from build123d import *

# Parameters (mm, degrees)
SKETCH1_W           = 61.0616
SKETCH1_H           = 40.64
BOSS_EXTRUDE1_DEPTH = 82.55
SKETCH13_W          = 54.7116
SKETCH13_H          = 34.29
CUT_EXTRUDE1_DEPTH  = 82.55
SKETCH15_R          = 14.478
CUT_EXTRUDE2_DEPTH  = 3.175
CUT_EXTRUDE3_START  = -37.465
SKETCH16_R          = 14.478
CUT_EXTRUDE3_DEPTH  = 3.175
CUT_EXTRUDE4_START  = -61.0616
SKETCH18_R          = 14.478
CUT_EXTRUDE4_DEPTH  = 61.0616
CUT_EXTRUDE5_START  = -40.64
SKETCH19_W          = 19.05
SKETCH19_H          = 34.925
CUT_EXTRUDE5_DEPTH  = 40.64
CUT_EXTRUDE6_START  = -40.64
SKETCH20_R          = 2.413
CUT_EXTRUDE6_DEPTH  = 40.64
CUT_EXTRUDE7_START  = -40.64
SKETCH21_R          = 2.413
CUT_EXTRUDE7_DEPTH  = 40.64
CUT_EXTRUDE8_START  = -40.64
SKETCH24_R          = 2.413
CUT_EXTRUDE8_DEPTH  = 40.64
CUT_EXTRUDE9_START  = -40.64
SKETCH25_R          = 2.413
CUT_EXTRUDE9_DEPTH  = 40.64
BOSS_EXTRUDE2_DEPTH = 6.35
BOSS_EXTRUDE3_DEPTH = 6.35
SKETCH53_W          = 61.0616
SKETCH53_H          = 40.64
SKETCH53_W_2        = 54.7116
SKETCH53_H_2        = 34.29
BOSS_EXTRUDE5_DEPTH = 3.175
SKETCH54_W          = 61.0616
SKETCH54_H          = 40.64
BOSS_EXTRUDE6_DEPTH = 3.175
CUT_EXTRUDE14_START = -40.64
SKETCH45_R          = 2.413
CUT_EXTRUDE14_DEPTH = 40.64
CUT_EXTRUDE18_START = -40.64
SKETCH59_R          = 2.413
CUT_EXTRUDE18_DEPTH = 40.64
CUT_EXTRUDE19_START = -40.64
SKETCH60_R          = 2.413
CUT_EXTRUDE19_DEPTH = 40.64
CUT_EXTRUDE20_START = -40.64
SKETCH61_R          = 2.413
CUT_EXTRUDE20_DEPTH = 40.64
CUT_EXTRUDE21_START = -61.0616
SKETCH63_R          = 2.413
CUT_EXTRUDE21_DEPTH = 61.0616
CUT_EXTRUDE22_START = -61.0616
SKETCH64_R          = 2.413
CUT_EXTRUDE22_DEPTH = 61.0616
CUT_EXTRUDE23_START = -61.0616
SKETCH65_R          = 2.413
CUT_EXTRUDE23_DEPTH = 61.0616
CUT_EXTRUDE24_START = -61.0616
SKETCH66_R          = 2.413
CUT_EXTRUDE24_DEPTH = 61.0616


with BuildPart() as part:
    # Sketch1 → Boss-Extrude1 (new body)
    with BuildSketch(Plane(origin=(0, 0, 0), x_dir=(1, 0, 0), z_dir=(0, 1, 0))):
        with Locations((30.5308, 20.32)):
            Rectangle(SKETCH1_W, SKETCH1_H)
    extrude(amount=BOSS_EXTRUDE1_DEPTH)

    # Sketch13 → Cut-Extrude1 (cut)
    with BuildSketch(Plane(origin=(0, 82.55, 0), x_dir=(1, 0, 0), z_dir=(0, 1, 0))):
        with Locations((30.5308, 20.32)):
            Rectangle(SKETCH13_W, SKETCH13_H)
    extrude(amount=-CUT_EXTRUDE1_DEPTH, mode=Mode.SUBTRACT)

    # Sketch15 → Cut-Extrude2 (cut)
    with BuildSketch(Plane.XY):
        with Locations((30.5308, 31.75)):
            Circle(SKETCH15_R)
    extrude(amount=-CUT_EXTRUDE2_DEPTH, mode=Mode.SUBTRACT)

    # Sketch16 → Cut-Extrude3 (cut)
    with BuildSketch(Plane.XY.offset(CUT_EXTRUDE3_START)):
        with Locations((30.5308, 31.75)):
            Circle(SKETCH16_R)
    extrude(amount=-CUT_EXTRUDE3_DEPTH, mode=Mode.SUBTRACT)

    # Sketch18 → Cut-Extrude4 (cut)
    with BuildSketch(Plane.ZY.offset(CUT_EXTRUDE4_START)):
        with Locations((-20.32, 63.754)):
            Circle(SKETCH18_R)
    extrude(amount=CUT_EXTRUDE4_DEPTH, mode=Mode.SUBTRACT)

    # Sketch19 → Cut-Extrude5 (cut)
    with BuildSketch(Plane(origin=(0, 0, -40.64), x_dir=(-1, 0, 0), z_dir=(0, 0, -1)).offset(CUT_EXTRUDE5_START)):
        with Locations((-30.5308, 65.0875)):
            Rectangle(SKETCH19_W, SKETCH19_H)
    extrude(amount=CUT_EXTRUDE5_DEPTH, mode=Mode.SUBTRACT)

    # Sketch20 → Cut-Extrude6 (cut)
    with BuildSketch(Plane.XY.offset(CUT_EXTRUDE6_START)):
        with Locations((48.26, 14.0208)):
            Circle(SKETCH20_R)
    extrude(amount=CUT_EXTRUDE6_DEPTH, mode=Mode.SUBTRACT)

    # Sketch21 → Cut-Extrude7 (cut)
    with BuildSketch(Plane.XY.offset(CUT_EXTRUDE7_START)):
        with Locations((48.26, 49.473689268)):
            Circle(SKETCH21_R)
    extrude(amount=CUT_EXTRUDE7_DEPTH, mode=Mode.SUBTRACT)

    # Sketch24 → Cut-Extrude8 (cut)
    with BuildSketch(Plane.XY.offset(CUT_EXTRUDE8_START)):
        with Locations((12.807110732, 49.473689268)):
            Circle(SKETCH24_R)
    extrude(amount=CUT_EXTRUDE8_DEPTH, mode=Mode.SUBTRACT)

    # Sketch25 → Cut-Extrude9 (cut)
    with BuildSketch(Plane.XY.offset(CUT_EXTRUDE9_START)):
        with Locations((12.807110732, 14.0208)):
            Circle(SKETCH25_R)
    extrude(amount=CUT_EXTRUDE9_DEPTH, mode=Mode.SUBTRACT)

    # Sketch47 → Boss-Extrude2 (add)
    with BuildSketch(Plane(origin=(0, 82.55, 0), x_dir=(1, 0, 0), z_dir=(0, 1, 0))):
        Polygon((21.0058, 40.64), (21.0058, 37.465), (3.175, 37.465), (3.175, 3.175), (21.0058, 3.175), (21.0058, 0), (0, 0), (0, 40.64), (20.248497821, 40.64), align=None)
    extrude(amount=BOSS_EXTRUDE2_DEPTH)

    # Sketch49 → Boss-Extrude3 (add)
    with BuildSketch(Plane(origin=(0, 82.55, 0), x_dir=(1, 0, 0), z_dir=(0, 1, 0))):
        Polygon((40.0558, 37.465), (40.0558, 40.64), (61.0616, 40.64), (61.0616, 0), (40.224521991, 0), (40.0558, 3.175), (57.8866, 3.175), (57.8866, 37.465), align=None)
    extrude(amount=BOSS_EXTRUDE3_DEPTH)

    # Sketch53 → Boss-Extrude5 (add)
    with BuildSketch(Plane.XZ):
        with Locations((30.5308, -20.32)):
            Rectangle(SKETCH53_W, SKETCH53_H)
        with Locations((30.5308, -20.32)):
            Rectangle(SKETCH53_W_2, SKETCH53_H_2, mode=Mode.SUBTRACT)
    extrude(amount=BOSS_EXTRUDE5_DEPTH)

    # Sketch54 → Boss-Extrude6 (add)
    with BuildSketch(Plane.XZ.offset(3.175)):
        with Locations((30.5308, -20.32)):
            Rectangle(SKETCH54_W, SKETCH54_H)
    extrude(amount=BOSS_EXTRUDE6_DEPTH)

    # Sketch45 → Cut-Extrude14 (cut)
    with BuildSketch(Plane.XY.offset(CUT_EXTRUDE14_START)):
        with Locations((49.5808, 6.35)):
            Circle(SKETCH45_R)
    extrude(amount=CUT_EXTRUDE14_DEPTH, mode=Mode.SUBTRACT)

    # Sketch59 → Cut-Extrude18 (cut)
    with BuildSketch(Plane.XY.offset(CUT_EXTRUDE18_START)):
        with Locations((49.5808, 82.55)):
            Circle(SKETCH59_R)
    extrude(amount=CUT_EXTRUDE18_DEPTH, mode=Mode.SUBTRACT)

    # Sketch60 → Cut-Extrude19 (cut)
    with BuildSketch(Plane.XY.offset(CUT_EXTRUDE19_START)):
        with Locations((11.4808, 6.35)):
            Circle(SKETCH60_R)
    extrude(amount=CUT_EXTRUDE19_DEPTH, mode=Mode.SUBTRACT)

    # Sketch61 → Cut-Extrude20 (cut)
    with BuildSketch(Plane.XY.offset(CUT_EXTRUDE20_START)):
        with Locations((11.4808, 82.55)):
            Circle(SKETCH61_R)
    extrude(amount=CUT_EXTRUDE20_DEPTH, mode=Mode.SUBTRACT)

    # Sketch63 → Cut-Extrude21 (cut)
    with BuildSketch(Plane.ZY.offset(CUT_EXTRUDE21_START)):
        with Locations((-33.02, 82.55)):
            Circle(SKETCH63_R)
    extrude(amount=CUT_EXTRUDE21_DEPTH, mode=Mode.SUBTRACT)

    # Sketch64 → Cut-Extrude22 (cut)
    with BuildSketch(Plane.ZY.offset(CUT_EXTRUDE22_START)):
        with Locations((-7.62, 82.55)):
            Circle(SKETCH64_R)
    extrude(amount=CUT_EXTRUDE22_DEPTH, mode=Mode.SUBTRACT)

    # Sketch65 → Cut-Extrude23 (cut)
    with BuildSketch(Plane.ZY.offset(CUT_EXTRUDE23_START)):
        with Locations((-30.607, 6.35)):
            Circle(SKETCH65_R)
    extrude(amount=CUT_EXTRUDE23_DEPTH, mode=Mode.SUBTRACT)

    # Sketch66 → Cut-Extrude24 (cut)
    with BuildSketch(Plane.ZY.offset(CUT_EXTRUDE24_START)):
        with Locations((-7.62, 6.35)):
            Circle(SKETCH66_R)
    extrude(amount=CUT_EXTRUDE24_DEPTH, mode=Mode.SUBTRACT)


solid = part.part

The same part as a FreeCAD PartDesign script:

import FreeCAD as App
import Part
import Sketcher

V = App.Vector
Q = App.Units.Quantity


def add_polygon(sketch, points):
    """Adds a closed chain of lines whose ends are joined by coincident constraints."""
    first, n = sketch.GeometryCount, len(points)
    for a, b in zip(points, points[1:] + points[:1]):
        sketch.addGeometry(Part.LineSegment(App.Vector(*a, 0), App.Vector(*b, 0)), False)
    for i in range(n):
        sketch.addConstraint(Sketcher.Constraint("Coincident", first + i, 2, first + (i + 1) % n, 1))

doc = App.newDocument("Part")
body = doc.addObject("PartDesign::Body", "Body")

# Sketch on XZ plane
sketch1 = body.newObject("Sketcher::SketchObject", "Sketch")
sketch1.AttachmentSupport = (doc.getObject("XZ_Plane"), [""])
sketch1.MapMode = "FlatFace"
add_polygon(sketch1, [(0, -40.64), (0, 0), (61.0616, 0), (61.0616, -40.64)])  # lines 0-3
sketch1.addConstraint([
    Sketcher.Constraint("Vertical", 0),
    Sketcher.Constraint("Horizontal", 1),
    Sketcher.Constraint("Vertical", 2),
    Sketcher.Constraint("Horizontal", 3),
    Sketcher.Constraint("Coincident", 0, 2, -1, 1),
    Sketcher.Constraint("DistanceY", 0, 1, 0, 2, Q("1.6 in")),
    Sketcher.Constraint("DistanceX", 1, 1, 1, 2, Q("2.404 in")),
])
pad1 = body.newObject("PartDesign::Pad", "Pad")
pad1.Profile = sketch1
pad1.Length = Q("3.25 in")
pad1.Reversed = True

# Sketch on XZ plane
sketch2 = body.newObject("Sketcher::SketchObject", "Sketch001")
sketch2.AttachmentSupport = (doc.getObject("XZ_Plane"), [""])
sketch2.MapMode = "FlatFace"
sketch2.AttachmentOffset = App.Placement(V(0, 0, -3.25 * 25.4), App.Rotation())
add_polygon(sketch2, [(3.175, -37.465), (3.175, -3.175), (57.8866, -3.175), (57.8866, -37.465)])  # lines 0-3
sketch2.addConstraint([
    Sketcher.Constraint("Vertical", 0),
    Sketcher.Constraint("Horizontal", 1),
    Sketcher.Constraint("Vertical", 2),
    Sketcher.Constraint("Horizontal", 3),
    Sketcher.Constraint("DistanceY", 0, 1, 0, 2, Q("1.35 in")),
    Sketcher.Constraint("DistanceX", 1, 1, 1, 2, Q("2.154 in")),
    Sketcher.Constraint("DistanceX", -1, 1, 0, 2, Q("0.125 in")),
    Sketcher.Constraint("DistanceY", 0, 2, -1, 1, Q("0.125 in")),
])
pocket1 = body.newObject("PartDesign::Pocket", "Pocket")
pocket1.Profile = sketch2
pocket1.Length = Q("3.25 in")
pocket1.Reversed = True

# Sketch on XY plane
sketch3 = body.newObject("Sketcher::SketchObject", "Sketch002")
sketch3.AttachmentSupport = (doc.getObject("XY_Plane"), [""])
sketch3.MapMode = "FlatFace"
sketch3.addGeometry(Part.Circle(V(30.5308, 31.75, 0), V(0, 0, 1), 14.478), False)
sketch3.addConstraint([
    Sketcher.Constraint("Diameter", 0, Q("1.14 in")),
    Sketcher.Constraint("DistanceY", -1, 1, 0, 3, Q("1.25 in")),
    Sketcher.Constraint("DistanceX", -1, 1, 0, 3, Q("1.202 in")),
])
pocket2 = body.newObject("PartDesign::Pocket", "Pocket001")
pocket2.Profile = sketch3
pocket2.Length = Q("0.125 in")

# Sketch on XY plane
sketch4 = body.newObject("Sketcher::SketchObject", "Sketch003")
sketch4.AttachmentSupport = (doc.getObject("XY_Plane"), [""])
sketch4.MapMode = "FlatFace"
sketch4.AttachmentOffset = App.Placement(V(0, 0, -1.475 * 25.4), App.Rotation())
sketch4.addGeometry(Part.Circle(V(30.5308, 31.75, 0), V(0, 0, 1), 14.478), False)
sketch4.addConstraint([
    Sketcher.Constraint("Diameter", 0, Q("1.14 in")),
    Sketcher.Constraint("DistanceY", -1, 1, 0, 3, Q("1.25 in")),
    Sketcher.Constraint("DistanceX", -1, 1, 0, 3, Q("1.202 in")),
])
pocket3 = body.newObject("PartDesign::Pocket", "Pocket002")
pocket3.Profile = sketch4
pocket3.Length = Q("0.125 in")

# Sketch on YZ plane
sketch5 = body.newObject("Sketcher::SketchObject", "Sketch004")
sketch5.AttachmentSupport = (doc.getObject("YZ_Plane"), [""])
sketch5.MapMode = "FlatFace"
sketch5.AttachmentOffset = App.Placement(V(0, 0, 2.404 * 25.4), App.Rotation())
sketch5.addGeometry(Part.Circle(V(63.754, -20.32, 0), V(0, 0, 1), 14.478), False)
sketch5.addConstraint([
    Sketcher.Constraint("Diameter", 0, Q("1.14 in")),
    Sketcher.Constraint("DistanceY", 0, 3, -1, 1, Q("0.8 in")),
    Sketcher.Constraint("DistanceX", -1, 1, 0, 3, Q("2.51 in")),
])
pocket4 = body.newObject("PartDesign::Pocket", "Pocket003")
pocket4.Profile = sketch5
pocket4.Length = Q("2.404 in")

# Sketch on XY plane
sketch6 = body.newObject("Sketcher::SketchObject", "Sketch005")
sketch6.AttachmentSupport = (doc.getObject("XY_Plane"), [""])
sketch6.MapMode = "FlatFace"
add_polygon(sketch6, [(40.0558, 82.55), (40.0558, 47.625), (21.0058, 47.625), (21.0058, 82.55)])  # lines 0-3
sketch6.addConstraint([
    Sketcher.Constraint("Vertical", 0),
    Sketcher.Constraint("Horizontal", 1),
    Sketcher.Constraint("Vertical", 2),
    Sketcher.Constraint("Horizontal", 3),
    Sketcher.Constraint("DistanceX", 1, 2, 1, 1, Q("0.75 in")),
    Sketcher.Constraint("DistanceY", 0, 2, 0, 1, Q("1.375 in")),
    Sketcher.Constraint("DistanceY", -1, 1, 2, 2, Q("3.25 in")),
    Sketcher.Constraint("DistanceX", -1, 1, 0, 2, Q("1.577 in")),
])
pocket5 = body.newObject("PartDesign::Pocket", "Pocket004")
pocket5.Profile = sketch6
pocket5.Length = Q("1.6 in")

# Sketch on XY plane
sketch7 = body.newObject("Sketcher::SketchObject", "Sketch006")
sketch7.AttachmentSupport = (doc.getObject("XY_Plane"), [""])
sketch7.MapMode = "FlatFace"
sketch7.AttachmentOffset = App.Placement(V(0, 0, -1.6 * 25.4), App.Rotation())
sketch7.addGeometry(Part.Circle(V(48.26, 14.0208, 0), V(0, 0, 1), 2.413), False)
sketch7.addConstraint([
    Sketcher.Constraint("Diameter", 0, Q("0.19 in")),
    Sketcher.Constraint("DistanceX", -1, 1, 0, 3, Q("1.9 in")),
    Sketcher.Constraint("DistanceY", -1, 1, 0, 3, Q("0.552 in")),
])
pocket6 = body.newObject("PartDesign::Pocket", "Pocket005")
pocket6.Profile = sketch7
pocket6.Length = Q("1.6 in")
pocket6.Reversed = True

# Sketch on XY plane
sketch8 = body.newObject("Sketcher::SketchObject", "Sketch007")
sketch8.AttachmentSupport = (doc.getObject("XY_Plane"), [""])
sketch8.MapMode = "FlatFace"
sketch8.AttachmentOffset = App.Placement(V(0, 0, -1.6 * 25.4), App.Rotation())
sketch8.addGeometry(Part.Circle(V(48.26, 49.473689, 0), V(0, 0, 1), 2.413), False)
sketch8.addConstraint([
    Sketcher.Constraint("Diameter", 0, Q("0.19 in")),
    Sketcher.Constraint("DistanceX", -1, 1, 0, 3, Q("1.9 in")),
    Sketcher.Constraint("DistanceY", -1, 1, 0, 3, Q("49.473689 mm")),
])
pocket7 = body.newObject("PartDesign::Pocket", "Pocket006")
pocket7.Profile = sketch8
pocket7.Length = Q("1.6 in")
pocket7.Reversed = True

# Sketch on XY plane
sketch9 = body.newObject("Sketcher::SketchObject", "Sketch008")
sketch9.AttachmentSupport = (doc.getObject("XY_Plane"), [""])
sketch9.MapMode = "FlatFace"
sketch9.AttachmentOffset = App.Placement(V(0, 0, -1.6 * 25.4), App.Rotation())
sketch9.addGeometry(Part.Circle(V(12.807111, 49.473689, 0), V(0, 0, 1), 2.413), False)
sketch9.addConstraint([
    Sketcher.Constraint("Diameter", 0, Q("0.19 in")),
    Sketcher.Constraint("DistanceX", -1, 1, 0, 3, Q("12.807111 mm")),
    Sketcher.Constraint("DistanceY", -1, 1, 0, 3, Q("49.473689 mm")),
])
pocket8 = body.newObject("PartDesign::Pocket", "Pocket007")
pocket8.Profile = sketch9
pocket8.Length = Q("1.6 in")
pocket8.Reversed = True

# Sketch on XY plane
sketch10 = body.newObject("Sketcher::SketchObject", "Sketch009")
sketch10.AttachmentSupport = (doc.getObject("XY_Plane"), [""])
sketch10.MapMode = "FlatFace"
sketch10.AttachmentOffset = App.Placement(V(0, 0, -1.6 * 25.4), App.Rotation())
sketch10.addGeometry(Part.Circle(V(12.807111, 14.0208, 0), V(0, 0, 1), 2.413), False)
sketch10.addConstraint([
    Sketcher.Constraint("Diameter", 0, Q("0.19 in")),
    Sketcher.Constraint("DistanceY", -1, 1, 0, 3, Q("0.552 in")),
    Sketcher.Constraint("DistanceX", -1, 1, 0, 3, Q("12.807111 mm")),
])
pocket9 = body.newObject("PartDesign::Pocket", "Pocket008")
pocket9.Profile = sketch10
pocket9.Length = Q("1.6 in")
pocket9.Reversed = True

# Sketch on XZ plane
sketch11 = body.newObject("Sketcher::SketchObject", "Sketch010")
sketch11.AttachmentSupport = (doc.getObject("XZ_Plane"), [""])
sketch11.MapMode = "FlatFace"
sketch11.AttachmentOffset = App.Placement(V(0, 0, -3.25 * 25.4), App.Rotation())
add_polygon(sketch11, [(21.0058, -37.465), (21.0058, -40.64), (0, -40.64), (0, 0), (21.0058, 0), (21.0058, -3.175), (3.175, -3.175), (3.175, -37.465)])  # lines 0-7
sketch11.addConstraint([
    Sketcher.Constraint("Vertical", 0),
    Sketcher.Constraint("Horizontal", 1),
    Sketcher.Constraint("Vertical", 2),
    Sketcher.Constraint("Horizontal", 3),
    Sketcher.Constraint("Vertical", 4),
    Sketcher.Constraint("Horizontal", 5),
    Sketcher.Constraint("Vertical", 6),
    Sketcher.Constraint("Horizontal", 7),
    Sketcher.Constraint("Coincident", 2, 2, -1, 1),
    Sketcher.Constraint("Vertical", 0, 2, 3, 2),
    Sketcher.Constraint("Equal", 0, 4),
    Sketcher.Constraint("DistanceY", 2, 1, 2, 2, Q("1.6 in")),
    Sketcher.Constraint("DistanceY", 6, 2, 6, 1, Q("1.35 in")),
    Sketcher.Constraint("DistanceX", 1, 2, 1, 1, Q("0.827 in")),
    Sketcher.Constraint("DistanceX", 5, 2, 5, 1, Q("0.702 in")),
])
pad2 = body.newObject("PartDesign::Pad", "Pad001")
pad2.Profile = sketch11
pad2.Length = Q("0.25 in")
pad2.Reversed = True

# Sketch on XZ plane
sketch12 = body.newObject("Sketcher::SketchObject", "Sketch011")
sketch12.AttachmentSupport = (doc.getObject("XZ_Plane"), [""])
sketch12.MapMode = "FlatFace"
sketch12.AttachmentOffset = App.Placement(V(0, 0, -3.25 * 25.4), App.Rotation())
add_polygon(sketch12, [(40.0558, -40.64), (40.0558, -37.465), (57.8866, -37.465), (57.8866, -3.175), (40.0558, -3.175), (40.224522, 0), (61.0616, 0), (61.0616, -40.64)])  # lines 0-7
sketch12.addConstraint([
    Sketcher.Constraint("Vertical", 0),
    Sketcher.Constraint("Horizontal", 1),
    Sketcher.Constraint("Vertical", 2),
    Sketcher.Constraint("Horizontal", 3),
    Sketcher.Constraint("Horizontal", 5),
    Sketcher.Constraint("Vertical", 6),
    Sketcher.Constraint("Horizontal", 7),
    Sketcher.Constraint("PointOnObject", 4, 2, -1),
    Sketcher.Constraint("Vertical", 0, 2, 3, 2),
    Sketcher.Constraint("DistanceY", 6, 2, 6, 1, Q("1.6 in")),
    Sketcher.Constraint("DistanceY", 2, 1, 2, 2, Q("1.35 in")),
    Sketcher.Constraint("DistanceX", 1, 1, 1, 2, Q("0.702 in")),
    Sketcher.Constraint("DistanceX", 7, 2, 7, 1, Q("0.827 in")),
    Sketcher.Constraint("DistanceY", 0, 1, 0, 2, Q("0.125 in")),
    Sketcher.Constraint("DistanceX", -1, 1, 0, 2, Q("1.577 in")),
    Sketcher.Constraint("DistanceX", 5, 1, 5, 2, Q("20.837078 mm")),
])
pad3 = body.newObject("PartDesign::Pad", "Pad002")
pad3.Profile = sketch12
pad3.Length = Q("0.25 in")
pad3.Reversed = True

# Sketch on XZ plane
sketch13 = body.newObject("Sketcher::SketchObject", "Sketch012")
sketch13.AttachmentSupport = (doc.getObject("XZ_Plane"), [""])
sketch13.MapMode = "FlatFace"
add_polygon(sketch13, [(0, 0), (0, -40.64), (61.0616, -40.64), (61.0616, 0)])  # lines 0-3
add_polygon(sketch13, [(57.8866, -37.465), (3.175, -37.465), (3.175, -3.175), (57.8866, -3.175)])  # lines 4-7
sketch13.addConstraint([
    Sketcher.Constraint("Vertical", 0),
    Sketcher.Constraint("Horizontal", 1),
    Sketcher.Constraint("Vertical", 2),
    Sketcher.Constraint("Horizontal", 3),
    Sketcher.Constraint("Horizontal", 4),
    Sketcher.Constraint("Vertical", 5),
    Sketcher.Constraint("Horizontal", 6),
    Sketcher.Constraint("Vertical", 7),
    Sketcher.Constraint("Coincident", 3, 2, -1, 1),
    Sketcher.Constraint("DistanceY", 0, 2, 0, 1, Q("1.6 in")),
    Sketcher.Constraint("DistanceY", 5, 1, 5, 2, Q("1.35 in")),
    Sketcher.Constraint("DistanceX", 1, 1, 1, 2, Q("2.404 in")),
    Sketcher.Constraint("DistanceX", 4, 2, 4, 1, Q("2.154 in")),
    Sketcher.Constraint("DistanceX", -1, 1, 4, 2, Q("0.125 in")),
    Sketcher.Constraint("DistanceY", 4, 2, -1, 1, Q("1.475 in")),
])
pad4 = body.newObject("PartDesign::Pad", "Pad003")
pad4.Profile = sketch13
pad4.Length = Q("0.125 in")

# Sketch on XZ plane
sketch14 = body.newObject("Sketcher::SketchObject", "Sketch013")
sketch14.AttachmentSupport = (doc.getObject("XZ_Plane"), [""])
sketch14.MapMode = "FlatFace"
sketch14.AttachmentOffset = App.Placement(V(0, 0, 0.125 * 25.4), App.Rotation())
add_polygon(sketch14, [(0, 0), (0, -40.64), (61.0616, -40.64), (61.0616, 0)])  # lines 0-3
sketch14.addConstraint([
    Sketcher.Constraint("Vertical", 0),
    Sketcher.Constraint("Horizontal", 1),
    Sketcher.Constraint("Vertical", 2),
    Sketcher.Constraint("Horizontal", 3),
    Sketcher.Constraint("Coincident", 3, 2, -1, 1),
    Sketcher.Constraint("DistanceY", 0, 2, 0, 1, Q("1.6 in")),
    Sketcher.Constraint("DistanceX", 1, 1, 1, 2, Q("2.404 in")),
])
pad5 = body.newObject("PartDesign::Pad", "Pad004")
pad5.Profile = sketch14
pad5.Length = Q("0.125 in")

# Sketch on XY plane
sketch15 = body.newObject("Sketcher::SketchObject", "Sketch014")
sketch15.AttachmentSupport = (doc.getObject("XY_Plane"), [""])
sketch15.MapMode = "FlatFace"
sketch15.AttachmentOffset = App.Placement(V(0, 0, -1.6 * 25.4), App.Rotation())
sketch15.addGeometry(Part.Circle(V(49.5808, 6.35, 0), V(0, 0, 1), 2.413), False)
sketch15.addConstraint([
    Sketcher.Constraint("Diameter", 0, Q("0.19 in")),
    Sketcher.Constraint("DistanceY", -1, 1, 0, 3, Q("0.25 in")),
    Sketcher.Constraint("DistanceX", -1, 1, 0, 3, Q("1.952 in")),
])
pocket10 = body.newObject("PartDesign::Pocket", "Pocket009")
pocket10.Profile = sketch15
pocket10.Length = Q("1.6 in")
pocket10.Reversed = True

# Sketch on XY plane
sketch16 = body.newObject("Sketcher::SketchObject", "Sketch015")
sketch16.AttachmentSupport = (doc.getObject("XY_Plane"), [""])
sketch16.MapMode = "FlatFace"
sketch16.AttachmentOffset = App.Placement(V(0, 0, -1.6 * 25.4), App.Rotation())
sketch16.addGeometry(Part.Circle(V(49.5808, 82.55, 0), V(0, 0, 1), 2.413), False)
sketch16.addConstraint([
    Sketcher.Constraint("Diameter", 0, Q("0.19 in")),
    Sketcher.Constraint("DistanceY", -1, 1, 0, 3, Q("3.25 in")),
    Sketcher.Constraint("DistanceX", -1, 1, 0, 3, Q("1.952 in")),
])
pocket11 = body.newObject("PartDesign::Pocket", "Pocket010")
pocket11.Profile = sketch16
pocket11.Length = Q("1.6 in")
pocket11.Reversed = True

# Sketch on XY plane
sketch17 = body.newObject("Sketcher::SketchObject", "Sketch016")
sketch17.AttachmentSupport = (doc.getObject("XY_Plane"), [""])
sketch17.MapMode = "FlatFace"
sketch17.AttachmentOffset = App.Placement(V(0, 0, -1.6 * 25.4), App.Rotation())
sketch17.addGeometry(Part.Circle(V(11.4808, 6.35, 0), V(0, 0, 1), 2.413), False)
sketch17.addConstraint([
    Sketcher.Constraint("Diameter", 0, Q("0.19 in")),
    Sketcher.Constraint("DistanceY", -1, 1, 0, 3, Q("0.25 in")),
    Sketcher.Constraint("DistanceX", -1, 1, 0, 3, Q("0.452 in")),
])
pocket12 = body.newObject("PartDesign::Pocket", "Pocket011")
pocket12.Profile = sketch17
pocket12.Length = Q("1.6 in")
pocket12.Reversed = True

# Sketch on XY plane
sketch18 = body.newObject("Sketcher::SketchObject", "Sketch017")
sketch18.AttachmentSupport = (doc.getObject("XY_Plane"), [""])
sketch18.MapMode = "FlatFace"
sketch18.AttachmentOffset = App.Placement(V(0, 0, -1.6 * 25.4), App.Rotation())
sketch18.addGeometry(Part.Circle(V(11.4808, 82.55, 0), V(0, 0, 1), 2.413), False)
sketch18.addConstraint([
    Sketcher.Constraint("Diameter", 0, Q("0.19 in")),
    Sketcher.Constraint("DistanceY", -1, 1, 0, 3, Q("3.25 in")),
    Sketcher.Constraint("DistanceX", -1, 1, 0, 3, Q("0.452 in")),
])
pocket13 = body.newObject("PartDesign::Pocket", "Pocket012")
pocket13.Profile = sketch18
pocket13.Length = Q("1.6 in")
pocket13.Reversed = True

# Sketch on YZ plane
sketch19 = body.newObject("Sketcher::SketchObject", "Sketch018")
sketch19.AttachmentSupport = (doc.getObject("YZ_Plane"), [""])
sketch19.MapMode = "FlatFace"
sketch19.AttachmentOffset = App.Placement(V(0, 0, 2.404 * 25.4), App.Rotation())
sketch19.addGeometry(Part.Circle(V(82.55, -33.02, 0), V(0, 0, 1), 2.413), False)
sketch19.addConstraint([
    Sketcher.Constraint("Diameter", 0, Q("0.19 in")),
    Sketcher.Constraint("DistanceY", 0, 3, -1, 1, Q("1.3 in")),
    Sketcher.Constraint("DistanceX", -1, 1, 0, 3, Q("3.25 in")),
])
pocket14 = body.newObject("PartDesign::Pocket", "Pocket013")
pocket14.Profile = sketch19
pocket14.Length = Q("2.404 in")

# Sketch on YZ plane
sketch20 = body.newObject("Sketcher::SketchObject", "Sketch019")
sketch20.AttachmentSupport = (doc.getObject("YZ_Plane"), [""])
sketch20.MapMode = "FlatFace"
sketch20.AttachmentOffset = App.Placement(V(0, 0, 2.404 * 25.4), App.Rotation())
sketch20.addGeometry(Part.Circle(V(82.55, -7.62, 0), V(0, 0, 1), 2.413), False)
sketch20.addConstraint([
    Sketcher.Constraint("Diameter", 0, Q("0.19 in")),
    Sketcher.Constraint("DistanceY", 0, 3, -1, 1, Q("0.3 in")),
    Sketcher.Constraint("DistanceX", -1, 1, 0, 3, Q("3.25 in")),
])
pocket15 = body.newObject("PartDesign::Pocket", "Pocket014")
pocket15.Profile = sketch20
pocket15.Length = Q("2.404 in")

# Sketch on YZ plane
sketch21 = body.newObject("Sketcher::SketchObject", "Sketch020")
sketch21.AttachmentSupport = (doc.getObject("YZ_Plane"), [""])
sketch21.MapMode = "FlatFace"
sketch21.AttachmentOffset = App.Placement(V(0, 0, 2.404 * 25.4), App.Rotation())
sketch21.addGeometry(Part.Circle(V(6.35, -30.607, 0), V(0, 0, 1), 2.413), False)
sketch21.addConstraint([
    Sketcher.Constraint("Diameter", 0, Q("0.19 in")),
    Sketcher.Constraint("DistanceX", -1, 1, 0, 3, Q("0.25 in")),
    Sketcher.Constraint("DistanceY", 0, 3, -1, 1, Q("1.205 in")),
])
pocket16 = body.newObject("PartDesign::Pocket", "Pocket015")
pocket16.Profile = sketch21
pocket16.Length = Q("2.404 in")

# Sketch on YZ plane
sketch22 = body.newObject("Sketcher::SketchObject", "Sketch021")
sketch22.AttachmentSupport = (doc.getObject("YZ_Plane"), [""])
sketch22.MapMode = "FlatFace"
sketch22.AttachmentOffset = App.Placement(V(0, 0, 2.404 * 25.4), App.Rotation())
sketch22.addGeometry(Part.Circle(V(6.35, -7.62, 0), V(0, 0, 1), 2.413), False)
sketch22.addConstraint([
    Sketcher.Constraint("Diameter", 0, Q("0.19 in")),
    Sketcher.Constraint("DistanceY", 0, 3, -1, 1, Q("0.3 in")),
    Sketcher.Constraint("DistanceX", -1, 1, 0, 3, Q("0.25 in")),
])
pocket17 = body.newObject("PartDesign::Pocket", "Pocket016")
pocket17.Profile = sketch22
pocket17.Length = Q("2.404 in")

doc.recompute()
